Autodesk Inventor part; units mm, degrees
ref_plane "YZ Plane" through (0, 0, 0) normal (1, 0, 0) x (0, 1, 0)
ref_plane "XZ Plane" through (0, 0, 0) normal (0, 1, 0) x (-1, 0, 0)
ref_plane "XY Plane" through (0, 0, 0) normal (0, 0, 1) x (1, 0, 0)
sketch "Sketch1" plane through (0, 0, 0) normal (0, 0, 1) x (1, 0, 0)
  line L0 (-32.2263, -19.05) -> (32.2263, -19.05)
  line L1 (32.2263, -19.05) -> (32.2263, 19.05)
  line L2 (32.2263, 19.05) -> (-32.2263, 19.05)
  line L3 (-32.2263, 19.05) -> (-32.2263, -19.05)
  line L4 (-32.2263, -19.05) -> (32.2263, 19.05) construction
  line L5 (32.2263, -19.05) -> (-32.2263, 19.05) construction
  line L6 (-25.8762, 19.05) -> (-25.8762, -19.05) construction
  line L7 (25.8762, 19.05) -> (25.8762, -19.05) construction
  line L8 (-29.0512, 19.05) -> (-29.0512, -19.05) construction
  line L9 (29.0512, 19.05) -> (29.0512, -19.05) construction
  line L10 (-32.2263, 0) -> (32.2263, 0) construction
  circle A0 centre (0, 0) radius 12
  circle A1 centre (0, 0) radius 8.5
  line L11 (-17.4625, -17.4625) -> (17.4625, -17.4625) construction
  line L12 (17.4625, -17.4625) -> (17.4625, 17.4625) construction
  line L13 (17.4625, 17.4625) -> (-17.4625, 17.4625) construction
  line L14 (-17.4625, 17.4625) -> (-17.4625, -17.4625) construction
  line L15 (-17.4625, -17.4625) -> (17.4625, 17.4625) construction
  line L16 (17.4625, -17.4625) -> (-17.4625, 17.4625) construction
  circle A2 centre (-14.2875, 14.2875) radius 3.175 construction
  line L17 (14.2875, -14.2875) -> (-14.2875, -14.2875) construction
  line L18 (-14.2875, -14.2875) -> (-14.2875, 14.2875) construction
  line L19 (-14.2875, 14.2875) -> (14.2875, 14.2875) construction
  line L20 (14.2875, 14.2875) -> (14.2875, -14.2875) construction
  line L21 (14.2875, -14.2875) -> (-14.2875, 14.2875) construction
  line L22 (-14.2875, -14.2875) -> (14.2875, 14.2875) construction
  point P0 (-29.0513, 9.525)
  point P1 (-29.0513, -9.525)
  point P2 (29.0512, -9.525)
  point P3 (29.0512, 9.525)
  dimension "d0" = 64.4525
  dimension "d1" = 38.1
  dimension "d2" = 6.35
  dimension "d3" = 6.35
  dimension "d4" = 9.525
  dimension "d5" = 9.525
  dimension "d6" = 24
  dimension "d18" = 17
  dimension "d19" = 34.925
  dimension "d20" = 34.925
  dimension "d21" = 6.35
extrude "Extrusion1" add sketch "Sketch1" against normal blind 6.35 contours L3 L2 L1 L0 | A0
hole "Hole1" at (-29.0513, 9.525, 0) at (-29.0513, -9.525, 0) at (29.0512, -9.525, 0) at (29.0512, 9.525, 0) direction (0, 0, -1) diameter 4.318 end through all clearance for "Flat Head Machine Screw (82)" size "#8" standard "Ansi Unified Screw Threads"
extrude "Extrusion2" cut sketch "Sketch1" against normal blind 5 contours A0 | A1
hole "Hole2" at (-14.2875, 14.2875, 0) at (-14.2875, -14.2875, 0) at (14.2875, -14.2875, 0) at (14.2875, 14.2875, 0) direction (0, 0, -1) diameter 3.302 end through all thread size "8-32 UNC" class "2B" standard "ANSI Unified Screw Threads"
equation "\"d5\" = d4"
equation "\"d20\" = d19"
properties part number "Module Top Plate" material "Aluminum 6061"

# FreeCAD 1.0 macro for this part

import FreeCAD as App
import Part
import Sketcher
from FreeCAD import Vector
Q = App.Units.Quantity

doc = App.newDocument("Part")
body = doc.addObject("PartDesign::Body", "Body")

# Sketch on XY plane
sketch1 = doc.addObject("Sketcher::SketchObject", "Sketch")
body.addObject(sketch1)
sketch1.AttachmentSupport = (doc.XY_Plane, [""])
sketch1.MapMode = "FlatFace"
sketch1.addGeometry(Part.LineSegment(Vector(-32, 19, 0), Vector(-32, -19, 0)), False)
sketch1.addGeometry(Part.LineSegment(Vector(-32, -19, 0), Vector(32, -19, 0)), False)
sketch1.addGeometry(Part.LineSegment(Vector(32, -19, 0), Vector(32, 19, 0)), False)
sketch1.addGeometry(Part.LineSegment(Vector(32, 19, 0), Vector(-32, 19, 0)), False)
sketch1.addGeometry(Part.Circle(Vector(0, 0, 0), Vector(0, 0, 1), 8), False)
sketch1.addConstraint(Sketcher.Constraint("Coincident", 0, 2, 1, 1))
sketch1.addConstraint(Sketcher.Constraint("Coincident", 1, 2, 2, 1))
sketch1.addConstraint(Sketcher.Constraint("Coincident", 2, 2, 3, 1))
sketch1.addConstraint(Sketcher.Constraint("Coincident", 3, 2, 0, 1))
sketch1.addConstraint(Sketcher.Constraint("Vertical", 0))
sketch1.addConstraint(Sketcher.Constraint("Horizontal", 1))
sketch1.addConstraint(Sketcher.Constraint("Vertical", 2))
sketch1.addConstraint(Sketcher.Constraint("Horizontal", 3))
sketch1.addConstraint(Sketcher.Constraint("Coincident", 4, 3, -1, 1))
sketch1.addConstraint(Sketcher.Constraint("Symmetric", 0, 2, 2, 2, -1, 1))
sketch1.addConstraint(Sketcher.Constraint("DistanceY", 0, 2, 0, 1, Q("1.5 in")))
sketch1.addConstraint(Sketcher.Constraint("Diameter", 4, Q("0.6693 in")))
sketch1.addConstraint(Sketcher.Constraint("DistanceX", 1, 1, 1, 2, Q("2.5375 in")))
pad1 = doc.addObject("PartDesign::Pad", "Pad")
body.addObject(pad1)
pad1.Profile = sketch1
pad1.Length = Q("0.25 in")
pad1.Reversed = True

# Sketch on XY plane
sketch2 = doc.addObject("Sketcher::SketchObject", "Sketch001")
body.addObject(sketch2)
sketch2.AttachmentSupport = (doc.XY_Plane, [""])
sketch2.MapMode = "FlatFace"
sketch2.addGeometry(Part.Circle(Vector(-29.1, 9.5, 0), Vector(0, 0, 1), 2.2), False)
sketch2.addGeometry(Part.Circle(Vector(-29.1, -9.5, 0), Vector(0, 0, 1), 2.2), False)
sketch2.addGeometry(Part.Circle(Vector(29.1, -9.5, 0), Vector(0, 0, 1), 2.2), False)
sketch2.addGeometry(Part.Circle(Vector(29.1, 9.5, 0), Vector(0, 0, 1), 2.2), False)
sketch2.addConstraint(Sketcher.Constraint("Equal", 0, 1))
sketch2.addConstraint(Sketcher.Constraint("Equal", 1, 2))
sketch2.addConstraint(Sketcher.Constraint("Equal", 2, 3))
sketch2.addConstraint(Sketcher.Constraint("Symmetric", 0, 3, 2, 3, -1, 1))
sketch2.addConstraint(Sketcher.Constraint("Symmetric", 1, 3, 3, 3, -1, 1))
sketch2.addConstraint(Sketcher.Constraint("Symmetric", 1, 3, 2, 3, -2))
sketch2.addConstraint(Sketcher.Constraint("Diameter", 0, Q("0.17 in")))
sketch2.addConstraint(Sketcher.Constraint("DistanceY", 1, 3, 0, 3, Q("0.75 in")))
sketch2.addConstraint(Sketcher.Constraint("DistanceX", 1, 3, 2, 3, Q("2.2875 in")))
doc.recompute()
hole = doc.addObject("PartDesign::Hole", "Hole")
body.addObject(hole)
hole.Profile = sketch2
hole.ThreadType = "None"
hole.Diameter = Q("0.17 in")
hole.DepthType = "ThroughAll"

# Sketch on XY plane
sketch3 = doc.addObject("Sketcher::SketchObject", "Sketch002")
body.addObject(sketch3)
sketch3.AttachmentSupport = (doc.XY_Plane, [""])
sketch3.MapMode = "FlatFace"
sketch3.addGeometry(Part.Circle(Vector(0, 0, 0), Vector(0, 0, 1), 12), False)
sketch3.addConstraint(Sketcher.Constraint("Coincident", 0, 3, -1, 1))
sketch3.addConstraint(Sketcher.Constraint("Diameter", 0, Q("24 mm")))
pocket1 = doc.addObject("PartDesign::Pocket", "Pocket")
body.addObject(pocket1)
pocket1.Profile = sketch3
pocket1.Length = 5

# Sketch on XY plane
sketch4 = doc.addObject("Sketcher::SketchObject", "Sketch003")
body.addObject(sketch4)
sketch4.AttachmentSupport = (doc.XY_Plane, [""])
sketch4.MapMode = "FlatFace"
sketch4.addGeometry(Part.Circle(Vector(-14.3, 14.3, 0), Vector(0, 0, 1), 1.7), False)
sketch4.addGeometry(Part.Circle(Vector(-14.3, -14.3, 0), Vector(0, 0, 1), 1.7), False)
sketch4.addGeometry(Part.Circle(Vector(14.3, -14.3, 0), Vector(0, 0, 1), 1.7), False)
sketch4.addGeometry(Part.Circle(Vector(14.3, 14.3, 0), Vector(0, 0, 1), 1.7), False)
sketch4.addConstraint(Sketcher.Constraint("Equal", 0, 1))
sketch4.addConstraint(Sketcher.Constraint("Equal", 1, 2))
sketch4.addConstraint(Sketcher.Constraint("Equal", 2, 3))
sketch4.addConstraint(Sketcher.Constraint("Symmetric", 0, 3, 2, 3, -1, 1))
sketch4.addConstraint(Sketcher.Constraint("Symmetric", 1, 3, 3, 3, -1, 1))
sketch4.addConstraint(Sketcher.Constraint("Symmetric", 1, 3, 2, 3, -2))
sketch4.addConstraint(Sketcher.Constraint("Diameter", 0, Q("0.13 in")))
sketch4.addConstraint(Sketcher.Constraint("DistanceX", 0, 3, -1, 1, Q("0.5625 in")))
sketch4.addConstraint(Sketcher.Constraint("DistanceY", -1, 1, 0, 3, Q("0.5625 in")))
doc.recompute()
hole2 = doc.addObject("PartDesign::Hole", "Hole001")
body.addObject(hole2)
hole2.Profile = sketch4
hole2.ThreadType = "None"
hole2.Diameter = Q("0.13 in")
hole2.DepthType = "ThroughAll"

doc.recompute()
